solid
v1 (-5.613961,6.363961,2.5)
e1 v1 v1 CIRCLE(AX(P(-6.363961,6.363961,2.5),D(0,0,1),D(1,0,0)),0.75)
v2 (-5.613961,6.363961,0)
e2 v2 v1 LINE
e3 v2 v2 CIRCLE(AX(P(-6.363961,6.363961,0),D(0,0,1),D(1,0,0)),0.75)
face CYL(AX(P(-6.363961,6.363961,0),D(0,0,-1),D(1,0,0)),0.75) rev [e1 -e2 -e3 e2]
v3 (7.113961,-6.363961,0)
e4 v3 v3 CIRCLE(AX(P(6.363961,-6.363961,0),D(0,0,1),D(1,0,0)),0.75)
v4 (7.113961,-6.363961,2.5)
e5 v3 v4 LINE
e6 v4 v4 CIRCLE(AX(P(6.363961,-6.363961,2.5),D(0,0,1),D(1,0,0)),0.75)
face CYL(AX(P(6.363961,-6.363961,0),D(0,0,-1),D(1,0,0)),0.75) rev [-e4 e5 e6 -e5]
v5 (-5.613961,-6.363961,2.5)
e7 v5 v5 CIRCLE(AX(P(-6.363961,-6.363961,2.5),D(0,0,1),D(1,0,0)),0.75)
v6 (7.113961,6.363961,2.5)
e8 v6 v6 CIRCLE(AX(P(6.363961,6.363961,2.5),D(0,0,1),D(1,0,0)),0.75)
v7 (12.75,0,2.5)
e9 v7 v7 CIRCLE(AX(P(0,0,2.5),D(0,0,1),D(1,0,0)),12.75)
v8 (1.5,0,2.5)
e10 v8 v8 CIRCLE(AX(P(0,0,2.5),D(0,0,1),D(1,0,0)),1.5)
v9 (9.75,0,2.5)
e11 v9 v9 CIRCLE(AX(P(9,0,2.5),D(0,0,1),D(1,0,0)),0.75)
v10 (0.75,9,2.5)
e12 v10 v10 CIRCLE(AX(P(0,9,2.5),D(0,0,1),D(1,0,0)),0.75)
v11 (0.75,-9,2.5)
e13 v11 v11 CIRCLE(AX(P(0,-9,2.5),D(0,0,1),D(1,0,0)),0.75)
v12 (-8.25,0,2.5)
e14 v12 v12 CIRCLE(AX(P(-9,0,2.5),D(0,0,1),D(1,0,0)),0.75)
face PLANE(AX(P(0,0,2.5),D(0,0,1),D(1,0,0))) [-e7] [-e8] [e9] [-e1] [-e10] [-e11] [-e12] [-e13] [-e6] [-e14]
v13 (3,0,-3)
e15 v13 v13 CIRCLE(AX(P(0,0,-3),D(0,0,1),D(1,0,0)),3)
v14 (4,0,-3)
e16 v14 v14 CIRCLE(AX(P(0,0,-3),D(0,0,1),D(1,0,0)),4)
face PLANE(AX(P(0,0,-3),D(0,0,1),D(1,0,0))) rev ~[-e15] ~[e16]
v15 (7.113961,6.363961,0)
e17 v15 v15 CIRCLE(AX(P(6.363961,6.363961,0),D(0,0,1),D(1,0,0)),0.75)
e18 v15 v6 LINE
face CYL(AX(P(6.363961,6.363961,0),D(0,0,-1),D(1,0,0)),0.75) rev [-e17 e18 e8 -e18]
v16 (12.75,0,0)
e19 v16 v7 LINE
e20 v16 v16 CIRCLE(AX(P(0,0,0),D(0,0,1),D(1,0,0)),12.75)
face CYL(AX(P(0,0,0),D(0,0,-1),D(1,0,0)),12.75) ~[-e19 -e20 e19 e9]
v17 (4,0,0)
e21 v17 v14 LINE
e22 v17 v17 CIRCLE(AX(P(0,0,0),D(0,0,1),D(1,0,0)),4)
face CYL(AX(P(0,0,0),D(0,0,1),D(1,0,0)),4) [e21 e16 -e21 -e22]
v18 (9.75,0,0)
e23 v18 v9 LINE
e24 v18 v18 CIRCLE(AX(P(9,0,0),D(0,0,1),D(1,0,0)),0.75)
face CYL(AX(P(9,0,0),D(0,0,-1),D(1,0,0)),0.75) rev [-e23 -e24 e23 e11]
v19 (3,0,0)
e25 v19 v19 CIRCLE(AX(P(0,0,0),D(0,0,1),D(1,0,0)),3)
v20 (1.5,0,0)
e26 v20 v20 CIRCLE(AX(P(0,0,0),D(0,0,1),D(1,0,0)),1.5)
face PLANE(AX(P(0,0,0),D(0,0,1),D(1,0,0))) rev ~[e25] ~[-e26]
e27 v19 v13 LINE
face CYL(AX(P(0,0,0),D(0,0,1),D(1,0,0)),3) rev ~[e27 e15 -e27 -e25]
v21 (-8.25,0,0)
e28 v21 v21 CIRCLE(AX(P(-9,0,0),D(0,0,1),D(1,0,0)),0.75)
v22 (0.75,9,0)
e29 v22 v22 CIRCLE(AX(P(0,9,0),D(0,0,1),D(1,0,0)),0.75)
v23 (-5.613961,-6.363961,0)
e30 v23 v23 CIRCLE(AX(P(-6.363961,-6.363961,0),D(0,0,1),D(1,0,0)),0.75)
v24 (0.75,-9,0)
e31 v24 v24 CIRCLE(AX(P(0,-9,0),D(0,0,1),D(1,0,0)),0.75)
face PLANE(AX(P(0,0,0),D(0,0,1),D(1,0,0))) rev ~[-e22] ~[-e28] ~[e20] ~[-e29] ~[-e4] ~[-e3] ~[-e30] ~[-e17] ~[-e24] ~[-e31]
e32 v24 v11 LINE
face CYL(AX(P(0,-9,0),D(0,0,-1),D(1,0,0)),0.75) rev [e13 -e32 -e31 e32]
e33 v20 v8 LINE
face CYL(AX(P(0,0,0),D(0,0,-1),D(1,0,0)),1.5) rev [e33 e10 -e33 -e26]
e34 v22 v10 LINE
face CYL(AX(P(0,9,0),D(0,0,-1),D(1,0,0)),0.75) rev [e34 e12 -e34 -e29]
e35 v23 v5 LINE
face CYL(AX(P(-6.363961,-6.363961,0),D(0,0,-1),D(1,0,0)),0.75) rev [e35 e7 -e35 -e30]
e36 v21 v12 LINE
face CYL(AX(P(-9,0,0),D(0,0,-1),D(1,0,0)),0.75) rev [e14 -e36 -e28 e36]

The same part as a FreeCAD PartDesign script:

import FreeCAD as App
import Part
import Sketcher
from FreeCAD import Vector

doc = App.newDocument("Part")
params = doc.addObject("Spreadsheet::Sheet", "Params")
for row, (alias, value) in enumerate([
    ("sketch1_diameter", "3 mm"),
    ("sketch1_diameter2", "25.5 mm"),
    ("sketch1_diameter3", "1.5 mm"),
    ("pad1_length", "2.5 mm"),
    ("sketch2_diameter", "8 mm"),
    ("sketch2_diameter2", "6 mm"),
    ("pad2_length", "3 mm"),
], start=1):
    params.set(f"A{row}", alias)
    params.set(f"B{row}", "=" + value)
    params.setAlias(f"B{row}", alias)

body = doc.addObject("PartDesign::Body", "Body")

# Sketch on XY plane
sketch1 = body.newObject("Sketcher::SketchObject", "Sketch")
sketch1.AttachmentSupport = (doc.getObject("XY_Plane"), [""])
sketch1.MapMode = "FlatFace"
sketch1.addGeometry([
    Part.Circle(Vector(0, 0, 0), Vector(0, 0, 1), 12.8),  # 0
    Part.Circle(Vector(-6.4, -6.4, 0), Vector(0, 0, 1), 0.8),  # 1
    Part.Circle(Vector(0, -9, 0), Vector(0, 0, 1), 0.8),  # 2
    Part.Circle(Vector(6.4, -6.4, 0), Vector(0, 0, 1), 0.8),  # 3
    Part.Circle(Vector(-9, 0, 0), Vector(0, 0, 1), 0.8),  # 4
    Part.Circle(Vector(-6.4, 6.4, 0), Vector(0, 0, 1), 0.8),  # 5
    Part.Circle(Vector(0, 0, 0), Vector(0, 0, 1), 1.5),  # 6
    Part.Circle(Vector(9, 0, 0), Vector(0, 0, 1), 0.8),  # 7
    Part.Circle(Vector(0, 9, 0), Vector(0, 0, 1), 0.8),  # 8
    Part.Circle(Vector(6.4, 6.4, 0), Vector(0, 0, 1), 0.8),  # 9
], False)
sketch1.addConstraint([
    Sketcher.Constraint("Coincident", 0, 3, -1, 1),
    Sketcher.Constraint("Coincident", 6, 3, -1, 1),
    Sketcher.Constraint("Equal", 1, 2),
    Sketcher.Constraint("Equal", 2, 3),
    Sketcher.Constraint("Equal", 3, 4),
    Sketcher.Constraint("Equal", 4, 5),
    Sketcher.Constraint("Equal", 5, 7),
    Sketcher.Constraint("Equal", 7, 8),
    Sketcher.Constraint("Equal", 8, 9),
    Sketcher.Constraint("Symmetric", 3, 3, 5, 3, -1, 1),
    Sketcher.Constraint("Symmetric", 4, 3, 7, 3, -1, 1),
    Sketcher.Constraint("Symmetric", 2, 3, 8, 3, -1, 1),
    Sketcher.Constraint("Symmetric", 1, 3, 9, 3, -1, 1),
    Sketcher.Constraint("Symmetric", 1, 3, 3, 3, -2),
    Sketcher.Constraint("PointOnObject", 2, 3, -2),
    Sketcher.Constraint("PointOnObject", 4, 3, -1),
    Sketcher.Constraint("Diameter", 6, 3.0),
    Sketcher.Constraint("Diameter", 0, 25.5),
    Sketcher.Constraint("Diameter", 1, 1.5),
    Sketcher.Constraint("DistanceY", 2, 3, -1, 1, 9.0),
    Sketcher.Constraint("DistanceX", 4, 3, -1, 1, 9.0),
    Sketcher.Constraint("DistanceX", 1, 3, -1, 1, 6.363961),
    Sketcher.Constraint("DistanceY", 1, 3, -1, 1, 6.363961),
])
sketch1.setExpression("Constraints[16]", "Params.sketch1_diameter")
sketch1.setExpression("Constraints[17]", "Params.sketch1_diameter2")
sketch1.setExpression("Constraints[18]", "Params.sketch1_diameter3")
pad1 = body.newObject("PartDesign::Pad", "Pad")
pad1.Profile = sketch1
pad1.setExpression("Length", "Params.pad1_length")

# Sketch on XY plane
sketch2 = body.newObject("Sketcher::SketchObject", "Sketch001")
sketch2.AttachmentSupport = (doc.getObject("XY_Plane"), [""])
sketch2.MapMode = "FlatFace"
sketch2.addGeometry([
    Part.Circle(Vector(0, 0, 0), Vector(0, 0, 1), 4),
    Part.Circle(Vector(0, 0, 0), Vector(0, 0, 1), 3),
], False)
sketch2.addConstraint([
    Sketcher.Constraint("Coincident", 0, 3, -1, 1),
    Sketcher.Constraint("Coincident", 1, 3, -1, 1),
    Sketcher.Constraint("Diameter", 0, 8.0),
    Sketcher.Constraint("Diameter", 1, 6.0),
])
sketch2.setExpression("Constraints[2]", "Params.sketch2_diameter")
sketch2.setExpression("Constraints[3]", "Params.sketch2_diameter2")
pad2 = body.newObject("PartDesign::Pad", "Pad001")
pad2.Profile = sketch2
pad2.setExpression("Length", "Params.pad2_length")
pad2.Reversed = True

doc.recompute()
